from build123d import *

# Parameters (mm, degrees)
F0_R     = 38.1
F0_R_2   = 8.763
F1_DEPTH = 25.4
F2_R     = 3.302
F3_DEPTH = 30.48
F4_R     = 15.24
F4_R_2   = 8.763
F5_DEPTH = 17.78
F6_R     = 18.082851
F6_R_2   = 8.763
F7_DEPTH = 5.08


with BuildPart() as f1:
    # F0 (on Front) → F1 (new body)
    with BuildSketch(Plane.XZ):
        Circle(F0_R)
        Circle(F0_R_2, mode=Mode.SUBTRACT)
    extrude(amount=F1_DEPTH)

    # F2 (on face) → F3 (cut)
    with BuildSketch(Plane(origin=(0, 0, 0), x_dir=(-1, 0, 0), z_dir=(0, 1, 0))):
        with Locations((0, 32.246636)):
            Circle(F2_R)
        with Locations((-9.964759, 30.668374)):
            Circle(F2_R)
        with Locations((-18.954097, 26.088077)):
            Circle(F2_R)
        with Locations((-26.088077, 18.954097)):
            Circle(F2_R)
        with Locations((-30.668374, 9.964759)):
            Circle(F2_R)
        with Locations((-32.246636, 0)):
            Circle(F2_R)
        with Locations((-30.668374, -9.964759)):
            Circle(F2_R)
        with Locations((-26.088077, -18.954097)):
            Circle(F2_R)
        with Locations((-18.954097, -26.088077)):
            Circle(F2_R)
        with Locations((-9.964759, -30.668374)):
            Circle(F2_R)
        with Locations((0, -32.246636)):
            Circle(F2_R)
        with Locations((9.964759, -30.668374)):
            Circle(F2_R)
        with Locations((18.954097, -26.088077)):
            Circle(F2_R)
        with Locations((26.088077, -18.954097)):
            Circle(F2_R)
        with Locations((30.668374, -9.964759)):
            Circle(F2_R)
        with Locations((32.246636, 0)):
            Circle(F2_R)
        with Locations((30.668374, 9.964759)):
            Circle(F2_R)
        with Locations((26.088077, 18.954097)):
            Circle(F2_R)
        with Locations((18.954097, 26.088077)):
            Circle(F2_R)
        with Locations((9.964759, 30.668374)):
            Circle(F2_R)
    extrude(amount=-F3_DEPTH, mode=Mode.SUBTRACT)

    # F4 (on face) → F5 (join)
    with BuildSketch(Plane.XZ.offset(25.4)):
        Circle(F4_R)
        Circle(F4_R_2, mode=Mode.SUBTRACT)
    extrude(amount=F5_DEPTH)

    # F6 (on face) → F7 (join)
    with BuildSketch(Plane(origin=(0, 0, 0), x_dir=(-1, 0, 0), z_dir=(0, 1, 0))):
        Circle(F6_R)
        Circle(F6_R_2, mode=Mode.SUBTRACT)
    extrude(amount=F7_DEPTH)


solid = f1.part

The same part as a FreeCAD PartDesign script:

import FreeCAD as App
import Part
import Sketcher

V = App.Vector
Q = App.Units.Quantity

doc = App.newDocument("Part")
body = doc.addObject("PartDesign::Body", "Body")

sketch1 = body.newObject("Sketcher::SketchObject", "Sketch")
sketch1.AttachmentSupport = (doc.getObject("XZ_Plane"), [""])
sketch1.MapMode = "FlatFace"
sketch1.addGeometry(Part.Circle(V(0, 0, 0), V(0, 0, 1), 38), False)
sketch1.addGeometry(Part.Circle(V(0, 0, 0), V(0, 0, 1), 9), False)
sketch1.addConstraint(Sketcher.Constraint("Coincident", 0, 3, -1, 1))
sketch1.addConstraint(Sketcher.Constraint("Coincident", 1, 3, -1, 1))
sketch1.addConstraint(Sketcher.Constraint("Diameter", 0, Q("3 in")))
sketch1.addConstraint(Sketcher.Constraint("Diameter", 1, Q("0.69 in")))
pad1 = body.newObject("PartDesign::Pad", "Pad")
pad1.Profile = sketch1
pad1.Length = Q("1 in")

sketch2 = body.newObject("Sketcher::SketchObject", "Sketch001")
sketch2.AttachmentSupport = (doc.getObject("XZ_Plane"), [""])
sketch2.MapMode = "FlatFace"
sketch2.addGeometry(Part.Circle(V(0, 32.2, 0), V(0, 0, 1), 3.3), False)
sketch2.addGeometry(Part.Circle(V(10, 30.7, 0), V(0, 0, 1), 3.3), False)
sketch2.addGeometry(Part.Circle(V(19, 26.1, 0), V(0, 0, 1), 3.3), False)
sketch2.addGeometry(Part.Circle(V(26.1, 19, 0), V(0, 0, 1), 3.3), False)
sketch2.addGeometry(Part.Circle(V(30.7, 10, 0), V(0, 0, 1), 3.3), False)
sketch2.addGeometry(Part.Circle(V(32.2, 0, 0), V(0, 0, 1), 3.3), False)
sketch2.addGeometry(Part.Circle(V(30.7, -10, 0), V(0, 0, 1), 3.3), False)
sketch2.addGeometry(Part.Circle(V(26.1, -19, 0), V(0, 0, 1), 3.3), False)
sketch2.addGeometry(Part.Circle(V(19, -26.1, 0), V(0, 0, 1), 3.3), False)
sketch2.addGeometry(Part.Circle(V(10, -30.7, 0), V(0, 0, 1), 3.3), False)
sketch2.addGeometry(Part.Circle(V(0, -32.2, 0), V(0, 0, 1), 3.3), False)
sketch2.addGeometry(Part.Circle(V(-10, -30.7, 0), V(0, 0, 1), 3.3), False)
sketch2.addGeometry(Part.Circle(V(-19, -26.1, 0), V(0, 0, 1), 3.3), False)
sketch2.addGeometry(Part.Circle(V(-26.1, -19, 0), V(0, 0, 1), 3.3), False)
sketch2.addGeometry(Part.Circle(V(-30.7, -10, 0), V(0, 0, 1), 3.3), False)
sketch2.addGeometry(Part.Circle(V(-32.2, 0, 0), V(0, 0, 1), 3.3), False)
sketch2.addGeometry(Part.Circle(V(-30.7, 10, 0), V(0, 0, 1), 3.3), False)
sketch2.addGeometry(Part.Circle(V(-26.1, 19, 0), V(0, 0, 1), 3.3), False)
sketch2.addGeometry(Part.Circle(V(-19, 26.1, 0), V(0, 0, 1), 3.3), False)
sketch2.addGeometry(Part.Circle(V(-10, 30.7, 0), V(0, 0, 1), 3.3), False)
sketch2.addConstraint(Sketcher.Constraint("Equal", 0, 1))
sketch2.addConstraint(Sketcher.Constraint("Equal", 1, 2))
sketch2.addConstraint(Sketcher.Constraint("Equal", 2, 3))
sketch2.addConstraint(Sketcher.Constraint("Equal", 3, 4))
sketch2.addConstraint(Sketcher.Constraint("Equal", 4, 5))
sketch2.addConstraint(Sketcher.Constraint("Equal", 5, 6))
sketch2.addConstraint(Sketcher.Constraint("Equal", 6, 7))
sketch2.addConstraint(Sketcher.Constraint("Equal", 7, 8))
sketch2.addConstraint(Sketcher.Constraint("Equal", 8, 9))
sketch2.addConstraint(Sketcher.Constraint("Equal", 9, 10))
sketch2.addConstraint(Sketcher.Constraint("Equal", 10, 11))
sketch2.addConstraint(Sketcher.Constraint("Equal", 11, 12))
sketch2.addConstraint(Sketcher.Constraint("Equal", 12, 13))
sketch2.addConstraint(Sketcher.Constraint("Equal", 13, 14))
sketch2.addConstraint(Sketcher.Constraint("Equal", 14, 15))
sketch2.addConstraint(Sketcher.Constraint("Equal", 15, 16))
sketch2.addConstraint(Sketcher.Constraint("Equal", 16, 17))
sketch2.addConstraint(Sketcher.Constraint("Equal", 17, 18))
sketch2.addConstraint(Sketcher.Constraint("Equal", 18, 19))
sketch2.addConstraint(Sketcher.Constraint("Symmetric", 0, 3, 10, 3, -1, 1))
sketch2.addConstraint(Sketcher.Constraint("Symmetric", 1, 3, 11, 3, -1, 1))
sketch2.addConstraint(Sketcher.Constraint("Symmetric", 2, 3, 12, 3, -1, 1))
sketch2.addConstraint(Sketcher.Constraint("Symmetric", 3, 3, 13, 3, -1, 1))
sketch2.addConstraint(Sketcher.Constraint("Symmetric", 4, 3, 14, 3, -1, 1))
sketch2.addConstraint(Sketcher.Constraint("Symmetric", 5, 3, 15, 3, -1, 1))
sketch2.addConstraint(Sketcher.Constraint("Symmetric", 6, 3, 16, 3, -1, 1))
sketch2.addConstraint(Sketcher.Constraint("Symmetric", 7, 3, 17, 3, -1, 1))
sketch2.addConstraint(Sketcher.Constraint("Symmetric", 8, 3, 18, 3, -1, 1))
sketch2.addConstraint(Sketcher.Constraint("Symmetric", 9, 3, 19, 3, -1, 1))
sketch2.addConstraint(Sketcher.Constraint("Symmetric", 9, 3, 11, 3, -2))
sketch2.addConstraint(Sketcher.Constraint("Symmetric", 8, 3, 12, 3, -2))
sketch2.addConstraint(Sketcher.Constraint("Symmetric", 7, 3, 13, 3, -2))
sketch2.addConstraint(Sketcher.Constraint("Symmetric", 6, 3, 14, 3, -2))
sketch2.addConstraint(Sketcher.Constraint("PointOnObject", 0, 3, -2))
sketch2.addConstraint(Sketcher.Constraint("PointOnObject", 5, 3, -1))
sketch2.addConstraint(Sketcher.Constraint("Diameter", 0, Q("0.26 in")))
sketch2.addConstraint(Sketcher.Constraint("DistanceX", -1, 1, 1, 3, 9.964759))
sketch2.addConstraint(Sketcher.Constraint("DistanceY", -1, 1, 4, 3, 9.964759))
sketch2.addConstraint(Sketcher.Constraint("DistanceY", 2, 3, 0, 3, 6.158559))
sketch2.addConstraint(Sketcher.Constraint("DistanceX", 2, 3, 3, 3, 7.13398))
sketch2.addConstraint(Sketcher.Constraint("DistanceY", 3, 3, 2, 3, 7.13398))
sketch2.addConstraint(Sketcher.Constraint("DistanceX", 3, 3, 5, 3, 6.158559))
sketch2.addConstraint(Sketcher.Constraint("DistanceY", -1, 1, 0, 3, 32.246636))
sketch2.addConstraint(Sketcher.Constraint("DistanceY", -1, 1, 1, 3, 30.668374))
sketch2.addConstraint(Sketcher.Constraint("DistanceX", -1, 1, 2, 3, 18.954097))
sketch2.addConstraint(Sketcher.Constraint("DistanceX", -1, 1, 4, 3, 30.668374))
pocket1 = body.newObject("PartDesign::Pocket", "Pocket")
pocket1.Profile = sketch2
pocket1.Length = Q("1.2 in")
pocket1.Reversed = True

sketch3 = body.newObject("Sketcher::SketchObject", "Sketch002")
sketch3.AttachmentSupport = (doc.getObject("XZ_Plane"), [""])
sketch3.MapMode = "FlatFace"
sketch3.AttachmentOffset = App.Placement(V(0, 0, 1 * 25.4), App.Rotation())
sketch3.addGeometry(Part.Circle(V(0, 0, 0), V(0, 0, 1), 15), False)
sketch3.addGeometry(Part.Circle(V(0, 0, 0), V(0, 0, 1), 9), False)
sketch3.addConstraint(Sketcher.Constraint("Coincident", 0, 3, -1, 1))
sketch3.addConstraint(Sketcher.Constraint("Coincident", 1, 3, -1, 1))
sketch3.addConstraint(Sketcher.Constraint("Diameter", 0, Q("1.2 in")))
sketch3.addConstraint(Sketcher.Constraint("Diameter", 1, Q("0.69 in")))
pad2 = body.newObject("PartDesign::Pad", "Pad001")
pad2.Profile = sketch3
pad2.Length = Q("0.7 in")

sketch4 = body.newObject("Sketcher::SketchObject", "Sketch003")
sketch4.AttachmentSupport = (doc.getObject("XZ_Plane"), [""])
sketch4.MapMode = "FlatFace"
sketch4.addGeometry(Part.Circle(V(0, 0, 0), V(0, 0, 1), 18), False)
sketch4.addGeometry(Part.Circle(V(0, 0, 0), V(0, 0, 1), 9), False)
sketch4.addConstraint(Sketcher.Constraint("Coincident", 0, 3, -1, 1))
sketch4.addConstraint(Sketcher.Constraint("Coincident", 1, 3, -1, 1))
sketch4.addConstraint(Sketcher.Constraint("Diameter", 1, Q("0.69 in")))
sketch4.addConstraint(Sketcher.Constraint("Diameter", 0, 36.165702))
pad3 = body.newObject("PartDesign::Pad", "Pad002")
pad3.Profile = sketch4
pad3.Length = Q("0.2 in")
pad3.Reversed = True

doc.recompute()
